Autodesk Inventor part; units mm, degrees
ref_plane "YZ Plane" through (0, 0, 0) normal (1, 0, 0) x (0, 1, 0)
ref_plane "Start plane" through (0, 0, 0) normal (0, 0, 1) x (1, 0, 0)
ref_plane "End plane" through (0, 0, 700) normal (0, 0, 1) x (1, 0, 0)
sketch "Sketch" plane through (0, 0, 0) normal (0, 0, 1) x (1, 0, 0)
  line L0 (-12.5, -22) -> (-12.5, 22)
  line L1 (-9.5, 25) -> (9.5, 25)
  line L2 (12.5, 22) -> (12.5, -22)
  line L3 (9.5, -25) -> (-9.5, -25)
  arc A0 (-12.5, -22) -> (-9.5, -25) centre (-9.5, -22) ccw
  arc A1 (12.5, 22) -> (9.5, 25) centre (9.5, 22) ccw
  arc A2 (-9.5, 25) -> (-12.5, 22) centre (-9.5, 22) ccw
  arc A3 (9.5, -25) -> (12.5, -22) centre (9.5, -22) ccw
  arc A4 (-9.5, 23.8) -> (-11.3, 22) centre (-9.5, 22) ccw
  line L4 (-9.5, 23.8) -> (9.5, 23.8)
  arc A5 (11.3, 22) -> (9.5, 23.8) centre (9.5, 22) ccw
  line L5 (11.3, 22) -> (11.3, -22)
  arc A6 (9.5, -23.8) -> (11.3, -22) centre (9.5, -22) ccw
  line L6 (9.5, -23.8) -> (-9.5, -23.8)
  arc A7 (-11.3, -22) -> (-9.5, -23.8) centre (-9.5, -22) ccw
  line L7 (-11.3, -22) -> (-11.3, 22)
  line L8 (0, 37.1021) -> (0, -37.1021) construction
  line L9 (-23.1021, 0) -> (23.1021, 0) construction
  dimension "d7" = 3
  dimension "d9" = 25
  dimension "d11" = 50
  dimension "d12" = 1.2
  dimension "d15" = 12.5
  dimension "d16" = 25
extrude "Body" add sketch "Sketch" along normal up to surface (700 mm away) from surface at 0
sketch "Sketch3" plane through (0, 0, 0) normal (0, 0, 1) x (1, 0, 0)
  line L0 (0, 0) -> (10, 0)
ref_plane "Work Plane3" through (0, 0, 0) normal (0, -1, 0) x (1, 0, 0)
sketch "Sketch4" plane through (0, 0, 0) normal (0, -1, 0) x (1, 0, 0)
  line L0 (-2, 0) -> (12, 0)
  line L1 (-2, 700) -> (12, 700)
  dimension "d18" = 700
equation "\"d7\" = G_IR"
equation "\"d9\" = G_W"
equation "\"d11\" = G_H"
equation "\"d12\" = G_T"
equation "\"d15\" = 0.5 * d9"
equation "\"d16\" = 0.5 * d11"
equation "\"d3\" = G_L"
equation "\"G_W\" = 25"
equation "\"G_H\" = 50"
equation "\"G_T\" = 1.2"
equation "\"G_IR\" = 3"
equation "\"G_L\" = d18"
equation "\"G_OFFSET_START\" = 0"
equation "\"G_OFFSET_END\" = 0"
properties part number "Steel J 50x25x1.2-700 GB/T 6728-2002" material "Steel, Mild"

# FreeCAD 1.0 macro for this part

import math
import FreeCAD as App
import Part
import Sketcher

V = App.Vector

doc = App.newDocument("Part")
body = doc.addObject("PartDesign::Body", "Body")

# Sketch on XY plane
sketch1 = doc.addObject("Sketcher::SketchObject", "Sketch")
body.addObject(sketch1)
sketch1.AttachmentSupport = (doc.XY_Plane, [""])
sketch1.MapMode = "FlatFace"
sketch1.addGeometry([
    Part.LineSegment(V(-12.5, 22, 0), V(-12.5, -22, 0)),  # 0
    Part.ArcOfCircle(Part.Circle(V(-9.5, -22, 0), V(0, 0, 1), 3), math.radians(180), math.radians(270)),  # 1
    Part.LineSegment(V(-9.5, -25, 0), V(9.5, -25, 0)),  # 2
    Part.ArcOfCircle(Part.Circle(V(9.5, -22, 0), V(0, 0, 1), 3), math.radians(-90), math.radians(0)),  # 3
    Part.LineSegment(V(12.5, -22, 0), V(12.5, 22, 0)),  # 4
    Part.ArcOfCircle(Part.Circle(V(9.5, 22, 0), V(0, 0, 1), 3), math.radians(0), math.radians(90)),  # 5
    Part.LineSegment(V(9.5, 25, 0), V(-9.5, 25, 0)),  # 6
    Part.ArcOfCircle(Part.Circle(V(-9.5, 22, 0), V(0, 0, 1), 3), math.radians(90), math.radians(180)),  # 7
    Part.ArcOfCircle(Part.Circle(V(-9.5, 22, 0), V(0, 0, 1), 1.8), math.radians(90), math.radians(180)),  # 8
    Part.LineSegment(V(-9.5, 23.8, 0), V(9.5, 23.8, 0)),  # 9
    Part.ArcOfCircle(Part.Circle(V(9.5, 22, 0), V(0, 0, 1), 1.8), math.radians(0), math.radians(90)),  # 10
    Part.LineSegment(V(11.3, 22, 0), V(11.3, -22, 0)),  # 11
    Part.ArcOfCircle(Part.Circle(V(9.5, -22, 0), V(0, 0, 1), 1.8), math.radians(-90), math.radians(0)),  # 12
    Part.LineSegment(V(9.5, -23.8, 0), V(-9.5, -23.8, 0)),  # 13
    Part.ArcOfCircle(Part.Circle(V(-9.5, -22, 0), V(0, 0, 1), 1.8), math.radians(180), math.radians(270)),  # 14
    Part.LineSegment(V(-11.3, -22, 0), V(-11.3, 22, 0)),  # 15
], False)
sketch1.addConstraint([
    Sketcher.Constraint("Tangent", 0, 2, 1, 1),
    Sketcher.Constraint("Tangent", 1, 2, 2, 1),
    Sketcher.Constraint("Tangent", 2, 2, 3, 1),
    Sketcher.Constraint("Tangent", 3, 2, 4, 1),
    Sketcher.Constraint("Tangent", 4, 2, 5, 1),
    Sketcher.Constraint("Tangent", 5, 2, 6, 1),
    Sketcher.Constraint("Tangent", 6, 2, 7, 1),
    Sketcher.Constraint("Tangent", 7, 2, 0, 1),
    Sketcher.Constraint("Tangent", 8, 1, 9, 1),
    Sketcher.Constraint("Tangent", 9, 2, 10, 2),
    Sketcher.Constraint("Tangent", 10, 1, 11, 1),
    Sketcher.Constraint("Tangent", 11, 2, 12, 2),
    Sketcher.Constraint("Tangent", 12, 1, 13, 1),
    Sketcher.Constraint("Tangent", 13, 2, 14, 2),
    Sketcher.Constraint("Tangent", 14, 1, 15, 1),
    Sketcher.Constraint("Tangent", 15, 2, 8, 2),
    Sketcher.Constraint("Vertical", 0),
    Sketcher.Constraint("Horizontal", 2),
    Sketcher.Constraint("Vertical", 4),
    Sketcher.Constraint("Horizontal", 6),
    Sketcher.Constraint("Horizontal", 9),
    Sketcher.Constraint("Vertical", 11),
    Sketcher.Constraint("Horizontal", 13),
    Sketcher.Constraint("Vertical", 15),
    Sketcher.Constraint("Coincident", 8, 3, 7, 3),
    Sketcher.Constraint("Coincident", 10, 3, 5, 3),
    Sketcher.Constraint("Coincident", 12, 3, 3, 3),
    Sketcher.Constraint("Equal", 1, 3),
    Sketcher.Constraint("Equal", 3, 5),
    Sketcher.Constraint("Equal", 5, 7),
    Sketcher.Constraint("Equal", 12, 14),
    Sketcher.Constraint("Symmetric", 1, 3, 5, 3, -1, 1),
    Sketcher.Constraint("Radius", 1, 3.0),
    Sketcher.Constraint("DistanceY", 1, 2, -1, 1, 25.0),
    Sketcher.Constraint("DistanceX", 0, 2, -1, 1, 12.5),
    Sketcher.Constraint("Radius", 8, 1.8),
])
pad1 = doc.addObject("PartDesign::Pad", "Pad")
body.addObject(pad1)
pad1.Profile = sketch1
pad1.Length = 700

doc.recompute()
